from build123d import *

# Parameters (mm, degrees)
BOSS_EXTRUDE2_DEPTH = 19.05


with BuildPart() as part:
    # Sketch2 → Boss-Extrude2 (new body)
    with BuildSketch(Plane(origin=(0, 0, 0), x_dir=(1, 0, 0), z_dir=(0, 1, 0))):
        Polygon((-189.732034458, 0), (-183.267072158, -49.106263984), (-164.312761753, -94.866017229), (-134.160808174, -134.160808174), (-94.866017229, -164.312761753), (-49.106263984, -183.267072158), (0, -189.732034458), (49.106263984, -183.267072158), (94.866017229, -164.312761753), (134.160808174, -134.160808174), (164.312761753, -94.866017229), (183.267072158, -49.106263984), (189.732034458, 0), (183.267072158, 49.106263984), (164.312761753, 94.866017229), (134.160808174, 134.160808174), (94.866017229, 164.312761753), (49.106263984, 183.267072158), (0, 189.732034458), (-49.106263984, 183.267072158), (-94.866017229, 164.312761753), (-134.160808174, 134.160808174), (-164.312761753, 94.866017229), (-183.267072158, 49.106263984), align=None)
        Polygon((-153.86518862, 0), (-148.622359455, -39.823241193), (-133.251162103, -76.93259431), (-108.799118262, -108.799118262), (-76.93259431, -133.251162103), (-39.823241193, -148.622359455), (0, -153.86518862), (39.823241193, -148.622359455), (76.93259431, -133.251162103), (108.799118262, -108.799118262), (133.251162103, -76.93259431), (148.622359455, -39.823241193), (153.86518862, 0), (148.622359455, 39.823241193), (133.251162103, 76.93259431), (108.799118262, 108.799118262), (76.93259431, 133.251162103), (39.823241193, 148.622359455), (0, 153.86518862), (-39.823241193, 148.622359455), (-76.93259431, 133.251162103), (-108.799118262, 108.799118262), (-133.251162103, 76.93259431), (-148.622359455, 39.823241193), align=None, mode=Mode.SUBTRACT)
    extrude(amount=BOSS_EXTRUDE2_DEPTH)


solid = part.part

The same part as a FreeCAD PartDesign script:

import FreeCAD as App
import Part
import Sketcher
from FreeCAD import Vector
Q = App.Units.Quantity


def add_polygon(sketch, points):
    """Adds a closed chain of lines whose ends are joined by coincident constraints."""
    first, n = sketch.GeometryCount, len(points)
    for a, b in zip(points, points[1:] + points[:1]):
        sketch.addGeometry(Part.LineSegment(App.Vector(*a, 0), App.Vector(*b, 0)), False)
    for i in range(n):
        sketch.addConstraint(Sketcher.Constraint("Coincident", first + i, 2, first + (i + 1) % n, 1))

doc = App.newDocument("Part")
params = doc.addObject("Spreadsheet::Sheet", "Params")
for row, (alias, value) in enumerate([
    ("sketch1_length", "1.95 in"),
    ("pad1_length", "0.75 in"),
], start=1):
    params.set(f"A{row}", alias)
    params.set(f"B{row}", "=" + value)
    params.setAlias(f"B{row}", alias)

body = doc.addObject("PartDesign::Body", "Body")

# Sketch on XZ plane
sketch1 = body.newObject("Sketcher::SketchObject", "Sketch")
sketch1.AttachmentSupport = (doc.getObject("XZ_Plane"), [""])
sketch1.MapMode = "FlatFace"
add_polygon(sketch1, [(-189.732034, 0), (-183.267072, 49.106264), (-164.312762, 94.866017), (-134.160808, 134.160808), (-94.866017, 164.312762), (-49.106264, 183.267072), (0, 189.732034), (49.106264, 183.267072), (94.866017, 164.312762), (134.160808, 134.160808), (164.312762, 94.866017), (183.267072, 49.106264), (189.732034, 0), (183.267072, -49.106264), (164.312762, -94.866017), (134.160808, -134.160808), (94.866017, -164.312762), (49.106264, -183.267072), (0, -189.732034), (-49.106264, -183.267072), (-94.866017, -164.312762), (-134.160808, -134.160808), (-164.312762, -94.866017), (-183.267072, -49.106264)])  # lines 0-23
add_polygon(sketch1, [(-148.622359, 39.823241), (-153.865189, 0), (-148.622359, -39.823241), (-133.251162, -76.932594), (-108.799118, -108.799118), (-76.932594, -133.251162), (-39.823241, -148.622359), (0, -153.865189), (39.823241, -148.622359), (76.932594, -133.251162), (108.799118, -108.799118), (133.251162, -76.932594), (148.622359, -39.823241), (153.865189, 0), (148.622359, 39.823241), (133.251162, 76.932594), (108.799118, 108.799118), (76.932594, 133.251162), (39.823241, 148.622359), (0, 153.865189), (-39.823241, 148.622359), (-76.932594, 133.251162), (-108.799118, 108.799118), (-133.251162, 76.932594)])  # lines 24-47
sketch1.addConstraint(Sketcher.Constraint("Symmetric", 0, 2, 12, 2, -1, 1))
sketch1.addConstraint(Sketcher.Constraint("Symmetric", 1, 2, 13, 2, -1, 1))
sketch1.addConstraint(Sketcher.Constraint("Symmetric", 2, 2, 14, 2, -1, 1))
sketch1.addConstraint(Sketcher.Constraint("Symmetric", 3, 2, 15, 2, -1, 1))
sketch1.addConstraint(Sketcher.Constraint("Symmetric", 4, 2, 16, 2, -1, 1))
sketch1.addConstraint(Sketcher.Constraint("Symmetric", 5, 2, 17, 2, -1, 1))
sketch1.addConstraint(Sketcher.Constraint("Symmetric", 6, 2, 18, 2, -1, 1))
sketch1.addConstraint(Sketcher.Constraint("Symmetric", 7, 2, 19, 2, -1, 1))
sketch1.addConstraint(Sketcher.Constraint("Symmetric", 8, 2, 20, 2, -1, 1))
sketch1.addConstraint(Sketcher.Constraint("Symmetric", 9, 2, 21, 2, -1, 1))
sketch1.addConstraint(Sketcher.Constraint("Symmetric", 10, 2, 22, 2, -1, 1))
sketch1.addConstraint(Sketcher.Constraint("Symmetric", 11, 2, 23, 2, -1, 1))
sketch1.addConstraint(Sketcher.Constraint("Symmetric", 24, 2, 36, 2, -1, 1))
sketch1.addConstraint(Sketcher.Constraint("Symmetric", 25, 2, 37, 2, -1, 1))
sketch1.addConstraint(Sketcher.Constraint("Symmetric", 26, 2, 38, 2, -1, 1))
sketch1.addConstraint(Sketcher.Constraint("Symmetric", 27, 2, 39, 2, -1, 1))
sketch1.addConstraint(Sketcher.Constraint("Symmetric", 28, 2, 40, 2, -1, 1))
sketch1.addConstraint(Sketcher.Constraint("Symmetric", 29, 2, 41, 2, -1, 1))
sketch1.addConstraint(Sketcher.Constraint("Symmetric", 30, 2, 42, 2, -1, 1))
sketch1.addConstraint(Sketcher.Constraint("Symmetric", 31, 2, 43, 2, -1, 1))
sketch1.addConstraint(Sketcher.Constraint("Symmetric", 32, 2, 44, 2, -1, 1))
sketch1.addConstraint(Sketcher.Constraint("Symmetric", 33, 2, 45, 2, -1, 1))
sketch1.addConstraint(Sketcher.Constraint("Symmetric", 34, 2, 46, 2, -1, 1))
sketch1.addConstraint(Sketcher.Constraint("Symmetric", 35, 2, 47, 2, -1, 1))
sketch1.addConstraint(Sketcher.Constraint("Symmetric", 4, 2, 6, 2, -2))
sketch1.addConstraint(Sketcher.Constraint("Symmetric", 3, 2, 7, 2, -2))
sketch1.addConstraint(Sketcher.Constraint("Symmetric", 2, 2, 8, 2, -2))
sketch1.addConstraint(Sketcher.Constraint("Symmetric", 1, 2, 9, 2, -2))
sketch1.addConstraint(Sketcher.Constraint("Symmetric", 0, 2, 10, 2, -2))
sketch1.addConstraint(Sketcher.Constraint("Symmetric", 29, 2, 31, 2, -2))
sketch1.addConstraint(Sketcher.Constraint("Symmetric", 28, 2, 32, 2, -2))
sketch1.addConstraint(Sketcher.Constraint("Symmetric", 27, 2, 33, 2, -2))
sketch1.addConstraint(Sketcher.Constraint("Symmetric", 26, 2, 34, 2, -2))
sketch1.addConstraint(Sketcher.Constraint("Symmetric", 25, 2, 35, 2, -2))
sketch1.addConstraint(Sketcher.Constraint("PointOnObject", 5, 2, -2))
sketch1.addConstraint(Sketcher.Constraint("PointOnObject", 11, 2, -1))
sketch1.addConstraint(Sketcher.Constraint("PointOnObject", 24, 2, -1))
sketch1.addConstraint(Sketcher.Constraint("PointOnObject", 30, 2, -2))
sketch1.addConstraint(Sketcher.Constraint("Perpendicular", 0, 6))
sketch1.addConstraint(Sketcher.Constraint("Perpendicular", 1, 7))
sketch1.addConstraint(Sketcher.Constraint("Perpendicular", 2, 8))
sketch1.addConstraint(Sketcher.Constraint("Perpendicular", 18, 24))
sketch1.addConstraint(Sketcher.Constraint("Parallel", 22, 26))
sketch1.addConstraint(Sketcher.Constraint("Parallel", 21, 27))
sketch1.addConstraint(Sketcher.Constraint("Parallel", 20, 28))
sketch1.addConstraint(Sketcher.Constraint("Parallel", 19, 29))
sketch1.addConstraint(Sketcher.Constraint("Perpendicular", 24, 30))
sketch1.addConstraint(Sketcher.Constraint("Equal", 0, 1))
sketch1.addConstraint(Sketcher.Constraint("Equal", 1, 2))
sketch1.addConstraint(Sketcher.Constraint("Equal", 2, 3))
sketch1.addConstraint(Sketcher.Constraint("Equal", 3, 4))
sketch1.addConstraint(Sketcher.Constraint("Equal", 4, 5))
sketch1.addConstraint(Sketcher.Constraint("Equal", 25, 26))
sketch1.addConstraint(Sketcher.Constraint("Equal", 26, 27))
sketch1.addConstraint(Sketcher.Constraint("Equal", 27, 28))
sketch1.addConstraint(Sketcher.Constraint("Equal", 28, 29))
sketch1.addConstraint(Sketcher.Constraint("Equal", 29, 30))
sketch1.addConstraint(Sketcher.Constraint("Angle", 0, Q("82.5 deg")))
sketch1.addConstraint(Sketcher.Constraint("Angle", 1, Q("67.5 deg")))
sketch1.addConstraint(Sketcher.Constraint("Angle", 2, Q("52.5 deg")))
sketch1.addConstraint(Sketcher.Constraint("Distance", 0, Q("1.95 in")))
sketch1.addConstraint(Sketcher.Constraint("DistanceX", 21, 2, 26, 2, Q("31.0616 mm")))
sketch1.setExpression("Constraints[108]", "Params.sketch1_length")
pad1 = body.newObject("PartDesign::Pad", "Pad")
pad1.Profile = sketch1
pad1.setExpression("Length", "Params.pad1_length")
pad1.Reversed = True

doc.recompute()
